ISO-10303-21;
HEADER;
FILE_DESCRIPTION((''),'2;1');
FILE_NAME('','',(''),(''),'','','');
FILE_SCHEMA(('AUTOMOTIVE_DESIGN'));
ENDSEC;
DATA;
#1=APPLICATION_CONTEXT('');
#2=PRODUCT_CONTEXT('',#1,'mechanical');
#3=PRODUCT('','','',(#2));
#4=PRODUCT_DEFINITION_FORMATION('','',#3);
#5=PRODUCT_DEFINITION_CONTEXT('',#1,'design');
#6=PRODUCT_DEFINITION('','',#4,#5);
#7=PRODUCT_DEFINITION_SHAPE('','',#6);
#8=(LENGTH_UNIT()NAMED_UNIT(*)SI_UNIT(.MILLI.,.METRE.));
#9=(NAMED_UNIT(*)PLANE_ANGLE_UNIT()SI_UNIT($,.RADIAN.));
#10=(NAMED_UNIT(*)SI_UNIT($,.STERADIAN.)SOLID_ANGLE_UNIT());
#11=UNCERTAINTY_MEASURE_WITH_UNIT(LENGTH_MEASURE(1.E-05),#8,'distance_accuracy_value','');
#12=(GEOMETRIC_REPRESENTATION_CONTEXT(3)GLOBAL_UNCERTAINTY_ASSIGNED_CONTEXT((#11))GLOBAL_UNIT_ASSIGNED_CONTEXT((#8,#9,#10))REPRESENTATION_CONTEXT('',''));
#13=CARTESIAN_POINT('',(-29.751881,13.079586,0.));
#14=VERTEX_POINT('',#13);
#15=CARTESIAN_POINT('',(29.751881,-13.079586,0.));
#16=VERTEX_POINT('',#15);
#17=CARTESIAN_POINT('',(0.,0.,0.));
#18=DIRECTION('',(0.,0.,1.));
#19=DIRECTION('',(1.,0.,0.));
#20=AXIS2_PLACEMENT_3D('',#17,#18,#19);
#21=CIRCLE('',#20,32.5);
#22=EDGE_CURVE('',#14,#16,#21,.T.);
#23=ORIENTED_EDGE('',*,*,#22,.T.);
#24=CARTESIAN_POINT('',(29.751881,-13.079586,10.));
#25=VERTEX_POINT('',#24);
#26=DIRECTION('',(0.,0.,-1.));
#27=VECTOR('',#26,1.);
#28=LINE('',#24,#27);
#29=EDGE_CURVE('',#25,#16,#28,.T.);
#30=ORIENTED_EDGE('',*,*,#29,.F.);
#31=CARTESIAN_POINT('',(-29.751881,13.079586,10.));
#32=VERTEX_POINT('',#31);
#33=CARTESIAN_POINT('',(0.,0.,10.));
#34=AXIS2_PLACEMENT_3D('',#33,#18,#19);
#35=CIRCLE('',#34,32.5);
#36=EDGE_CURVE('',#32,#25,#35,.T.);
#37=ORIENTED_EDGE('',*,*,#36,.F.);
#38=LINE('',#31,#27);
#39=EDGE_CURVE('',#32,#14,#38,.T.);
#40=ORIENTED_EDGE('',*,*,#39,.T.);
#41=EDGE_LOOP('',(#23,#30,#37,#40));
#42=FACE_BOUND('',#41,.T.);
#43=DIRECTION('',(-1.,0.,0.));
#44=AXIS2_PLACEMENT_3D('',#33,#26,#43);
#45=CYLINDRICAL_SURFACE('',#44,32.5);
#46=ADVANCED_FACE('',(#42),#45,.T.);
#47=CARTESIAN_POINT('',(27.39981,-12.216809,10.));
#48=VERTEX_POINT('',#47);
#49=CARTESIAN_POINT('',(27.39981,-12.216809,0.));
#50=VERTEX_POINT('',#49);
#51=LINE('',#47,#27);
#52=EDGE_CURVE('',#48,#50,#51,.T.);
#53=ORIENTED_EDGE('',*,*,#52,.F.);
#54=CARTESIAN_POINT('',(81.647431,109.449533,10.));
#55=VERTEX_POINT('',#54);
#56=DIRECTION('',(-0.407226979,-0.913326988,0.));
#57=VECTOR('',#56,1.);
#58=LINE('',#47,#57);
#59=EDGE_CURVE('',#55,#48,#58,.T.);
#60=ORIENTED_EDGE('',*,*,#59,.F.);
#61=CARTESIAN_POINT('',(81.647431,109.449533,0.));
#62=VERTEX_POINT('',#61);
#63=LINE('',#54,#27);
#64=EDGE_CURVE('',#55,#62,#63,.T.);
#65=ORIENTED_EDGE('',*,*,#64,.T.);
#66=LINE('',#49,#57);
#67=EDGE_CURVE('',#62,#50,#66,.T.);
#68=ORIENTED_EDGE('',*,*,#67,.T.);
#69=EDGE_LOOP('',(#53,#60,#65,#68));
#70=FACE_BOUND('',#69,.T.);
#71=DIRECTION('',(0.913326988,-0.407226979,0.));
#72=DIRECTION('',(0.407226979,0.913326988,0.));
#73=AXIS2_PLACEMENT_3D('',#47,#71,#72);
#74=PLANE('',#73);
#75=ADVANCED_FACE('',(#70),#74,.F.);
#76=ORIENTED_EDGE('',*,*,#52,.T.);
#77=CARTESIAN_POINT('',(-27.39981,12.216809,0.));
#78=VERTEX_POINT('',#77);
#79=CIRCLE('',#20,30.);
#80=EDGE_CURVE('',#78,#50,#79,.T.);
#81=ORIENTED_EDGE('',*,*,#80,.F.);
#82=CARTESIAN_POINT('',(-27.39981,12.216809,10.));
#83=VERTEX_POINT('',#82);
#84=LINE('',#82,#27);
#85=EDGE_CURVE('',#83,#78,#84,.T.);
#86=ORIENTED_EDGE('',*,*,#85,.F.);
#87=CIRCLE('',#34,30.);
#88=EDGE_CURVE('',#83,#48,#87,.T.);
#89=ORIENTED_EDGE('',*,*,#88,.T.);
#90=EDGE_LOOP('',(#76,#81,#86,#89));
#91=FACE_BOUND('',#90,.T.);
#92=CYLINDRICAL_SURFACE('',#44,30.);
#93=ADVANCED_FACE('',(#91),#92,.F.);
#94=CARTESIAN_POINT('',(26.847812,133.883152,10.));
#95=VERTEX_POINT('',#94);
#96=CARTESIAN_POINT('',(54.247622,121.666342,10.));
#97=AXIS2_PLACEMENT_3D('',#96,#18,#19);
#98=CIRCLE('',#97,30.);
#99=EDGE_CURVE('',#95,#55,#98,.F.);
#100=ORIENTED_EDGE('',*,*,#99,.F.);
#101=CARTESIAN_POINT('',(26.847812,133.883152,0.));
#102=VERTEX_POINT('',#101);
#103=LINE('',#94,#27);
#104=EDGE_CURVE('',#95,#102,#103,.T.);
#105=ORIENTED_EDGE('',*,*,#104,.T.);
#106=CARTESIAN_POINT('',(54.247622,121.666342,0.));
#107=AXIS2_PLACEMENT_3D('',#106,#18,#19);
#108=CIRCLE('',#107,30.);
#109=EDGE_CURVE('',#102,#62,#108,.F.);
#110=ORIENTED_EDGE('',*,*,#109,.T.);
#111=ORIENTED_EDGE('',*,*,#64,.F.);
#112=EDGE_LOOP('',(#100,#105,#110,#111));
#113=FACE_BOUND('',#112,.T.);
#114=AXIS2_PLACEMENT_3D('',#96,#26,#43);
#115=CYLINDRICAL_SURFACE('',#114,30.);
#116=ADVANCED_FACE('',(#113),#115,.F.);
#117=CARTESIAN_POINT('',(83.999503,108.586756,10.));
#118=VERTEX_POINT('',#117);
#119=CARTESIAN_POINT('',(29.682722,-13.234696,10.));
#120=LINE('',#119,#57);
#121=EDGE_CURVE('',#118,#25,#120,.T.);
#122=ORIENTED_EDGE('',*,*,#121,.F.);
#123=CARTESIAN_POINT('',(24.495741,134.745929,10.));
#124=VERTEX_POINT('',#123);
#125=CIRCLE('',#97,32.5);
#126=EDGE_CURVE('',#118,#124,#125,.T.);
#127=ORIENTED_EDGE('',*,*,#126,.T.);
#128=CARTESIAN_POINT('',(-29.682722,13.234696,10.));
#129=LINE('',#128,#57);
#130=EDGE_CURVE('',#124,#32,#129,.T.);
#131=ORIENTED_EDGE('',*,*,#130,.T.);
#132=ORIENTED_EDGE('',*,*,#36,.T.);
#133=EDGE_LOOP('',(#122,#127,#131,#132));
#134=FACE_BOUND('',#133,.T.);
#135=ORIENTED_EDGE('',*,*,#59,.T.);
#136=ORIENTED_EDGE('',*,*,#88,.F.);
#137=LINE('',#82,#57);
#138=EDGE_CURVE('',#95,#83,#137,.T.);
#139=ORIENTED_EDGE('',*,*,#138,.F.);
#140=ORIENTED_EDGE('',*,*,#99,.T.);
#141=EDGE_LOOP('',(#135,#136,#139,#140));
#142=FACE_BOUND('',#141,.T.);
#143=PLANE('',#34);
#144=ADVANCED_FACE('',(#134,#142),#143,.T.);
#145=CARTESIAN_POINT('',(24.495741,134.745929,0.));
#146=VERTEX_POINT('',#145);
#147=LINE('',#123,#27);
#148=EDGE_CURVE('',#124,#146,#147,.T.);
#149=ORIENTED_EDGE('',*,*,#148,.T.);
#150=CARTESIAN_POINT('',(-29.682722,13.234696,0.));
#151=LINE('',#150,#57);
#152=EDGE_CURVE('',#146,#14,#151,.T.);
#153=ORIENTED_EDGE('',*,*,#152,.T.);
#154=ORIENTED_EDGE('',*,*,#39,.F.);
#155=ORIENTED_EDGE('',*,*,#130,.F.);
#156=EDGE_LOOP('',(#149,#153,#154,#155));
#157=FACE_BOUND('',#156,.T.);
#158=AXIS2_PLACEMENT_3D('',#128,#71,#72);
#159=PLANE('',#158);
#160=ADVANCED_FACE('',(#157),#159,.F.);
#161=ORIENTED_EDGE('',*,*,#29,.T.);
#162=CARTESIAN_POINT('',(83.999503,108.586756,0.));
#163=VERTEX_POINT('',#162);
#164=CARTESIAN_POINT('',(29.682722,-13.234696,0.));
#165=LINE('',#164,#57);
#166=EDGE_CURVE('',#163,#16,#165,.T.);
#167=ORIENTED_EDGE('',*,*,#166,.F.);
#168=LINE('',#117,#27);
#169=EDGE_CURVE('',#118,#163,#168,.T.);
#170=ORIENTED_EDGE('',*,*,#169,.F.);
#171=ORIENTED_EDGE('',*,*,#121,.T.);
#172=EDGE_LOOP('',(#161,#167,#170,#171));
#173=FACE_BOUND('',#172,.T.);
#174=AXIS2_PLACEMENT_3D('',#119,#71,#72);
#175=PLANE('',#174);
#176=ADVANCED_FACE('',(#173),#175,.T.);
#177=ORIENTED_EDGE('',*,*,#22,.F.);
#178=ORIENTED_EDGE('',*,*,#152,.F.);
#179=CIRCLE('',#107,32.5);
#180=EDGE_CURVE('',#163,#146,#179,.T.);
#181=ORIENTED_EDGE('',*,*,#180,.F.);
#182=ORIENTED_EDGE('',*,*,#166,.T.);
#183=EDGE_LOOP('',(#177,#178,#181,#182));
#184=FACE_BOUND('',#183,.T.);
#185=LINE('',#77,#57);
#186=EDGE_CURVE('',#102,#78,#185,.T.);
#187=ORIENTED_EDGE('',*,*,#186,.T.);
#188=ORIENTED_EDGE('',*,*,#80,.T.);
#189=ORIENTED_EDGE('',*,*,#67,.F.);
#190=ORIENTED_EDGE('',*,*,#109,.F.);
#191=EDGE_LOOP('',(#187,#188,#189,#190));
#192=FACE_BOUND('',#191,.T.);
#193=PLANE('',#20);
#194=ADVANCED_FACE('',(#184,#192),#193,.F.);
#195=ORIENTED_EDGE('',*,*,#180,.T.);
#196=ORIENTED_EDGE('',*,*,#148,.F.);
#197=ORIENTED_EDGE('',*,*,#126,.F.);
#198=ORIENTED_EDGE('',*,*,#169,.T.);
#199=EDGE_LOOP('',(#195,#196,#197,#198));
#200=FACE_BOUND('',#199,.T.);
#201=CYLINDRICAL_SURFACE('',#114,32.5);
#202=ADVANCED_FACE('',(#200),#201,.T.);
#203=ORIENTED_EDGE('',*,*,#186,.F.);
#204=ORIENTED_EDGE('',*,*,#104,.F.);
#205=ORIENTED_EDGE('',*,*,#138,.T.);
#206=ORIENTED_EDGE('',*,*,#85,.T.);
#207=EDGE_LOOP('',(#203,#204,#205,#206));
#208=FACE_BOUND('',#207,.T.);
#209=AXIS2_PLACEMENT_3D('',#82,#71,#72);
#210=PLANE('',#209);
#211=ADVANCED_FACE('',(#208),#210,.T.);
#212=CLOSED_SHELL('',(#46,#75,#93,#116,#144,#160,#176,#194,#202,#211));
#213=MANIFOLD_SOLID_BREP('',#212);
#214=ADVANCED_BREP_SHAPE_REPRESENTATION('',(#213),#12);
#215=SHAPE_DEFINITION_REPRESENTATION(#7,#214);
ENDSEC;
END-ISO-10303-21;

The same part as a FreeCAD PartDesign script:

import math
import FreeCAD as App
import Part
import Sketcher

V = App.Vector

doc = App.newDocument("Part")
body = doc.addObject("PartDesign::Body", "Body")

# Sketch on XY plane
sketch1 = body.newObject("Sketcher::SketchObject", "Sketch")
sketch1.AttachmentSupport = (doc.getObject("XY_Plane"), [""])
sketch1.MapMode = "FlatFace"
sketch1.addGeometry(Part.LineSegment(V(29.751881, -13.079586, 0), V(83.999503, 108.586756, 0)), False)
sketch1.addGeometry(Part.ArcOfCircle(Part.Circle(V(54.247622, 121.666342, 0), V(0, 0, 1), 32.5), math.radians(-23.731355), math.radians(156.268645)), False)
sketch1.addGeometry(Part.LineSegment(V(24.495741, 134.745929, 0), V(-29.751881, 13.079586, 0)), False)
sketch1.addGeometry(Part.ArcOfCircle(Part.Circle(V(0, 0, 0), V(0, 0, 1), 32.5), math.radians(156.268645), math.radians(336.268645)), False)
sketch1.addGeometry(Part.LineSegment(V(26.783972, 133.739971, 0), V(26.847812, 133.883152, 0)), False)
sketch1.addGeometry(Part.ArcOfCircle(Part.Circle(V(54.247622, 121.666342, 0), V(0, 0, 1), 30), math.radians(-23.731355), math.radians(155.969243)), False)
sketch1.addGeometry(Part.ArcOfCircle(Part.Circle(V(54.247723, 121.666297, 0), V(0, 0, 1), 29.99989), math.radians(-24.030757), math.radians(-23.731354)), False)
sketch1.addGeometry(Part.LineSegment(V(81.647431, 109.449533, 0), V(27.46365, -12.073629, 0)), False)
sketch1.addGeometry(Part.LineSegment(V(27.46365, -12.073629, 0), V(27.39981, -12.216809, 0)), False)
sketch1.addGeometry(Part.ArcOfCircle(Part.Circle(V(0, 0, 0), V(0, 0, 1), 30), math.radians(156.268645), math.radians(335.969243)), False)
sketch1.addGeometry(Part.ArcOfCircle(Part.Circle(V(-0.000155, 0.000069, 0), V(0, 0, 1), 29.99983), math.radians(155.969243), math.radians(156.268646)), False)
sketch1.addGeometry(Part.LineSegment(V(-27.39981, 12.216809, 0), V(26.783972, 133.739971, 0)), False)
sketch1.addConstraint(Sketcher.Constraint("Coincident", 0, 2, 1, 1))
sketch1.addConstraint(Sketcher.Constraint("Coincident", 1, 2, 2, 1))
sketch1.addConstraint(Sketcher.Constraint("Coincident", 2, 2, 3, 1))
sketch1.addConstraint(Sketcher.Constraint("Coincident", 3, 2, 0, 1))
sketch1.addConstraint(Sketcher.Constraint("Coincident", 4, 2, 5, 2))
sketch1.addConstraint(Sketcher.Constraint("Coincident", 5, 1, 6, 2))
sketch1.addConstraint(Sketcher.Constraint("Coincident", 6, 1, 7, 1))
sketch1.addConstraint(Sketcher.Constraint("Coincident", 7, 2, 8, 1))
sketch1.addConstraint(Sketcher.Constraint("Coincident", 8, 2, 9, 2))
sketch1.addConstraint(Sketcher.Constraint("Coincident", 9, 1, 10, 2))
sketch1.addConstraint(Sketcher.Constraint("Coincident", 10, 1, 11, 1))
sketch1.addConstraint(Sketcher.Constraint("Coincident", 11, 2, 4, 1))
sketch1.addConstraint(Sketcher.Constraint("Coincident", 3, 3, -1, 1))
sketch1.addConstraint(Sketcher.Constraint("Coincident", 9, 3, -1, 1))
sketch1.addConstraint(Sketcher.Constraint("Coincident", 5, 3, 1, 3))
sketch1.addConstraint(Sketcher.Constraint("Radius", 5, 30.0))
sketch1.addConstraint(Sketcher.Constraint("Radius", 9, 30.0))
sketch1.addConstraint(Sketcher.Constraint("Radius", 1, 32.5))
sketch1.addConstraint(Sketcher.Constraint("Radius", 3, 32.5))
sketch1.addConstraint(Sketcher.Constraint("Radius", 6, 29.99989))
sketch1.addConstraint(Sketcher.Constraint("Radius", 10, 29.99983))
sketch1.addConstraint(Sketcher.Constraint("DistanceX", 1, 3, 6, 3, 0.000101))
sketch1.addConstraint(Sketcher.Constraint("Distance", 0, 133.212249))
sketch1.addConstraint(Sketcher.Constraint("Distance", 2, 133.212249))
sketch1.addConstraint(Sketcher.Constraint("Distance", 7, 133.055481))
sketch1.addConstraint(Sketcher.Constraint("Distance", 11, 133.055481))
sketch1.addConstraint(Sketcher.Constraint("DistanceX", -1, 1, 1, 3, 54.247622))
sketch1.addConstraint(Sketcher.Constraint("DistanceX", -1, 1, 1, 2, 24.495741))
sketch1.addConstraint(Sketcher.Constraint("DistanceY", -1, 1, 1, 2, 134.745929))
sketch1.addConstraint(Sketcher.Constraint("DistanceX", -1, 1, 3, 2, 29.751881))
sketch1.addConstraint(Sketcher.Constraint("DistanceY", -1, 1, 4, 2, 133.883152))
sketch1.addConstraint(Sketcher.Constraint("DistanceX", -1, 1, 6, 1, 81.647431))
sketch1.addConstraint(Sketcher.Constraint("DistanceX", -1, 1, 7, 2, 27.46365))
sketch1.addConstraint(Sketcher.Constraint("DistanceX", -1, 1, 8, 2, 27.39981))
sketch1.addConstraint(Sketcher.Constraint("DistanceX", 10, 1, -1, 1, 27.39981))
sketch1.addConstraint(Sketcher.Constraint("DistanceY", -1, 1, 11, 2, 133.739971))
sketch1.addConstraint(Sketcher.Constraint("DistanceY", 10, 3, 6, 3, 121.666229))
sketch1.addConstraint(Sketcher.Constraint("DistanceY", 5, 1, 6, 3, 12.07342))
sketch1.addConstraint(Sketcher.Constraint("DistanceX", 9, 1, 10, 3, 27.463119))
pad1 = body.newObject("PartDesign::Pad", "Pad")
pad1.Profile = sketch1
pad1.Length = 10

doc.recompute()
